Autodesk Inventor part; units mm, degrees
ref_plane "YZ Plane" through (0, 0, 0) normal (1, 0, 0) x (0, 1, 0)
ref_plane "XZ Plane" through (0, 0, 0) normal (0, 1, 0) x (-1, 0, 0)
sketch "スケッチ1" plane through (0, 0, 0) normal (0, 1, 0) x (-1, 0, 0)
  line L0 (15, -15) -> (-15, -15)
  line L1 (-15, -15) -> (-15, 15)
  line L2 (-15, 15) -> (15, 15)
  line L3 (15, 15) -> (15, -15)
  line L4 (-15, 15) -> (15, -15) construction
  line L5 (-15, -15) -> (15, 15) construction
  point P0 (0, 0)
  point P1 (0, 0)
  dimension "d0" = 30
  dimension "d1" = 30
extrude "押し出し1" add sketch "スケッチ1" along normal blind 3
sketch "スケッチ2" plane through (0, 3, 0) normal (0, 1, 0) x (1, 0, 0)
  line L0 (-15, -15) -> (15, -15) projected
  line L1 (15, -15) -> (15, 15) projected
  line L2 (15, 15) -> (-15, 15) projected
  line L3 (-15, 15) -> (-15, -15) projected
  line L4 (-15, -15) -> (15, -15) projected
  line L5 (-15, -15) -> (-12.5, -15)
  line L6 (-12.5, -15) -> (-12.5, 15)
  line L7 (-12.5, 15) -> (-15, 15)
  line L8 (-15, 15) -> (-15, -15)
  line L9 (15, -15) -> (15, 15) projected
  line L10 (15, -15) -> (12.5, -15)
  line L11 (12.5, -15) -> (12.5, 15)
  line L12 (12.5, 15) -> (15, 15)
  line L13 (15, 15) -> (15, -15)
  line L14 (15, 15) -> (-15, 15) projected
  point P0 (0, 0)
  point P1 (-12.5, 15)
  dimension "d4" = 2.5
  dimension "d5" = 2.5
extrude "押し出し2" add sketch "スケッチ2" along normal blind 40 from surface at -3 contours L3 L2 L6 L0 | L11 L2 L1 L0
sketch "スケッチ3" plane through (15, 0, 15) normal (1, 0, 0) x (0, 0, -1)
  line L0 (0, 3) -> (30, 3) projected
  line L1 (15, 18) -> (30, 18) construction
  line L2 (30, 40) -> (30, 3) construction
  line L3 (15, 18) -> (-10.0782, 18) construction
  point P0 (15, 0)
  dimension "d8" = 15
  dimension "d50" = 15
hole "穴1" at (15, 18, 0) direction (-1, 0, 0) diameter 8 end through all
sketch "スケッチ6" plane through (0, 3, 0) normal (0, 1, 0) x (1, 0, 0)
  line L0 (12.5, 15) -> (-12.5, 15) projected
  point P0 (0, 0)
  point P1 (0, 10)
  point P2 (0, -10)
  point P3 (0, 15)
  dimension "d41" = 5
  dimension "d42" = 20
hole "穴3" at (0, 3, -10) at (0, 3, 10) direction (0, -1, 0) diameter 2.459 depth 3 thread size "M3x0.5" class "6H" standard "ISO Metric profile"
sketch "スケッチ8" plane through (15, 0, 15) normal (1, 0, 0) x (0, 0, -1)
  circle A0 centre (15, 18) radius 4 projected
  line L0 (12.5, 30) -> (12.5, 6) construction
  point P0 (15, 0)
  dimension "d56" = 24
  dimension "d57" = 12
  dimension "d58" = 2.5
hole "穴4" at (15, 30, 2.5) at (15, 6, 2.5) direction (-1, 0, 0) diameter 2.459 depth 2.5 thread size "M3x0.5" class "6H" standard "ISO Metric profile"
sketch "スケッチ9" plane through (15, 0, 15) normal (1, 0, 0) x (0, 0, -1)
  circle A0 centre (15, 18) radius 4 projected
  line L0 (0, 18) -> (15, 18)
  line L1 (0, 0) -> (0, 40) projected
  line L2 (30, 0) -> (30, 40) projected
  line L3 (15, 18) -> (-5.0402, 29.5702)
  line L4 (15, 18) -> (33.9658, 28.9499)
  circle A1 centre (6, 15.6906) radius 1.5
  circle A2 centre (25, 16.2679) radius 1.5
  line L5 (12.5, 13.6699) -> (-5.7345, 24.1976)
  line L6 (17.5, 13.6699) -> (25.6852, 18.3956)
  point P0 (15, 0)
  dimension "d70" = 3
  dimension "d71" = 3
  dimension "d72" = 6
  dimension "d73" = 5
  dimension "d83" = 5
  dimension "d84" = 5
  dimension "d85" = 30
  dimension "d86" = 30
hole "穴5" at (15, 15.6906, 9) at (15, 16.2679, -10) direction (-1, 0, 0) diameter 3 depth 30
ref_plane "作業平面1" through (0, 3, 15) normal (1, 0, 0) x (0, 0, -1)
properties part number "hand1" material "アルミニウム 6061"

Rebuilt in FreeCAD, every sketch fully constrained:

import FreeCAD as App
import Part
import Sketcher

doc = App.newDocument("Part")
params = doc.addObject("Spreadsheet::Sheet", "Params")
for row, (alias, value) in enumerate([
    ("sketch1_width", "30 mm"),
    ("pad1_length", "3 mm"),
    ("sketch2_width", "2.5 mm"),
    ("sketch2_height", "30 mm"),
    ("pad2_length", "40 mm"),
    ("sketch3_diameter", "8 mm"),
    ("hole_diameter", "8 mm"),
    ("hole2_diameter", "2.459 mm"),
    ("hole2_depth", "3 mm"),
    ("hole3_diameter", "2.459 mm"),
    ("hole3_depth", "2.5 mm"),
    ("sketch6_diameter", "3 mm"),
    ("hole4_diameter", "3 mm"),
    ("hole4_depth", "30 mm"),
], start=1):
    params.set(f"A{row}", alias)
    params.set(f"B{row}", "=" + value)
    params.setAlias(f"B{row}", alias)

body = doc.addObject("PartDesign::Body", "Body")

# Sketch on XZ plane
sketch1 = body.newObject("Sketcher::SketchObject", "Sketch")
sketch1.AttachmentSupport = (doc.getObject("XZ_Plane"), [""])
sketch1.MapMode = "FlatFace"
sketch1.addGeometry([
    Part.LineSegment(App.Vector(15, -15, 0), App.Vector(-15, -15, 0)),
    Part.LineSegment(App.Vector(-15, -15, 0), App.Vector(-15, 15, 0)),
    Part.LineSegment(App.Vector(-15, 15, 0), App.Vector(15, 15, 0)),
    Part.LineSegment(App.Vector(15, 15, 0), App.Vector(15, -15, 0)),
], False)
sketch1.addConstraint([
    Sketcher.Constraint("Coincident", 0, 2, 1, 1),
    Sketcher.Constraint("Coincident", 1, 2, 2, 1),
    Sketcher.Constraint("Coincident", 2, 2, 3, 1),
    Sketcher.Constraint("Coincident", 3, 2, 0, 1),
    Sketcher.Constraint("Horizontal", 0),
    Sketcher.Constraint("Vertical", 1),
    Sketcher.Constraint("Horizontal", 2),
    Sketcher.Constraint("Vertical", 3),
    Sketcher.Constraint("Symmetric", 0, 2, 2, 2, -1, 1),
    Sketcher.Constraint("Equal", 2, 1),
    Sketcher.Constraint("DistanceX", 0, 2, 0, 1, 30.0),
])
sketch1.setExpression("Constraints[10]", "Params.sketch1_width")
pad1 = body.newObject("PartDesign::Pad", "Pad")
pad1.Profile = sketch1
pad1.setExpression("Length", "Params.pad1_length")
pad1.Reversed = True

# Sketch on XZ plane
sketch2 = body.newObject("Sketcher::SketchObject", "Sketch001")
sketch2.AttachmentSupport = (doc.getObject("XZ_Plane"), [""])
sketch2.MapMode = "FlatFace"
sketch2.addGeometry([
    Part.LineSegment(App.Vector(-15, -15, 0), App.Vector(-15, 15, 0)),  # 0
    Part.LineSegment(App.Vector(-15, 15, 0), App.Vector(-12.5, 15, 0)),  # 1
    Part.LineSegment(App.Vector(-12.5, 15, 0), App.Vector(-12.5, -15, 0)),  # 2
    Part.LineSegment(App.Vector(-12.5, -15, 0), App.Vector(-15, -15, 0)),  # 3
    Part.LineSegment(App.Vector(12.5, -15, 0), App.Vector(12.5, 15, 0)),  # 4
    Part.LineSegment(App.Vector(12.5, 15, 0), App.Vector(15, 15, 0)),  # 5
    Part.LineSegment(App.Vector(15, 15, 0), App.Vector(15, -15, 0)),  # 6
    Part.LineSegment(App.Vector(15, -15, 0), App.Vector(12.5, -15, 0)),  # 7
], False)
sketch2.addConstraint([
    Sketcher.Constraint("Coincident", 0, 2, 1, 1),
    Sketcher.Constraint("Coincident", 1, 2, 2, 1),
    Sketcher.Constraint("Coincident", 2, 2, 3, 1),
    Sketcher.Constraint("Coincident", 3, 2, 0, 1),
    Sketcher.Constraint("Coincident", 4, 2, 5, 1),
    Sketcher.Constraint("Coincident", 5, 2, 6, 1),
    Sketcher.Constraint("Coincident", 6, 2, 7, 1),
    Sketcher.Constraint("Coincident", 7, 2, 4, 1),
    Sketcher.Constraint("Vertical", 0),
    Sketcher.Constraint("Horizontal", 1),
    Sketcher.Constraint("Vertical", 2),
    Sketcher.Constraint("Horizontal", 3),
    Sketcher.Constraint("Vertical", 4),
    Sketcher.Constraint("Horizontal", 5),
    Sketcher.Constraint("Vertical", 6),
    Sketcher.Constraint("Horizontal", 7),
    Sketcher.Constraint("Symmetric", 2, 2, 4, 2, -1, 1),
    Sketcher.Constraint("Symmetric", 0, 2, 6, 2, -1, 1),
    Sketcher.Constraint("Horizontal", 1, 2, 4, 2),
    Sketcher.Constraint("DistanceX", 1, 1, 1, 2, 2.5),
    Sketcher.Constraint("DistanceY", 0, 1, 0, 2, 30.0),
    Sketcher.Constraint("DistanceX", 0, 2, -1, 1, 15.0),
])
sketch2.setExpression("Constraints[19]", "Params.sketch2_width")
sketch2.setExpression("Constraints[20]", "Params.sketch2_height")
pad2 = body.newObject("PartDesign::Pad", "Pad001")
pad2.Profile = sketch2
pad2.setExpression("Length", "Params.pad2_length")
pad2.Reversed = True

# Sketch on YZ plane
sketch3 = body.newObject("Sketcher::SketchObject", "Sketch002")
sketch3.AttachmentSupport = (doc.getObject("YZ_Plane"), [""])
sketch3.MapMode = "FlatFace"
sketch3.AttachmentOffset = App.Placement(App.Vector(0, 0, 15), App.Rotation())
sketch3.addGeometry(Part.Circle(App.Vector(18, 0, 0), App.Vector(0, 0, 1), 4), False)
sketch3.addConstraint([
    Sketcher.Constraint("PointOnObject", 0, 3, -1),
    Sketcher.Constraint("Diameter", 0, 8.0),
    Sketcher.Constraint("DistanceX", -1, 1, 0, 3, 18.0),
])
sketch3.setExpression("Constraints[1]", "Params.sketch3_diameter")
doc.recompute()
hole = body.newObject("PartDesign::Hole", "Hole")
hole.Profile = sketch3
hole.ThreadType = "None"
hole.setExpression("Diameter", "Params.hole_diameter")
hole.DepthType = "ThroughAll"

# Sketch on XZ plane
sketch4 = body.newObject("Sketcher::SketchObject", "Sketch003")
sketch4.AttachmentSupport = (doc.getObject("XZ_Plane"), [""])
sketch4.MapMode = "FlatFace"
sketch4.AttachmentOffset = App.Placement(App.Vector(0, 0, -3), App.Rotation())
sketch4.addGeometry([
    Part.Circle(App.Vector(0, -10, 0), App.Vector(0, 0, 1), 1.2),
    Part.Circle(App.Vector(0, 10, 0), App.Vector(0, 0, 1), 1.2),
], False)
sketch4.addConstraint([
    Sketcher.Constraint("Equal", 0, 1),
    Sketcher.Constraint("Symmetric", 0, 3, 1, 3, -1, 1),
    Sketcher.Constraint("PointOnObject", 0, 3, -2),
    Sketcher.Constraint("Diameter", 0, 2.459),
    Sketcher.Constraint("DistanceY", 0, 3, -1, 1, 10.0),
])
doc.recompute()
hole2 = body.newObject("PartDesign::Hole", "Hole001")
hole2.Profile = sketch4
hole2.ThreadType = "None"
hole2.setExpression("Diameter", "Params.hole2_diameter")
hole2.DepthType = "Dimension"
hole2.setExpression("Depth", "Params.hole2_depth")
hole2.DrillPoint = "Flat"
hole2.Reversed = True

# Sketch on YZ plane
sketch5 = body.newObject("Sketcher::SketchObject", "Sketch004")
sketch5.AttachmentSupport = (doc.getObject("YZ_Plane"), [""])
sketch5.MapMode = "FlatFace"
sketch5.AttachmentOffset = App.Placement(App.Vector(0, 0, 15), App.Rotation())
sketch5.addGeometry([
    Part.Circle(App.Vector(30, 2.5, 0), App.Vector(0, 0, 1), 1.2),
    Part.Circle(App.Vector(6, 2.5, 0), App.Vector(0, 0, 1), 1.2),
], False)
sketch5.addConstraint([
    Sketcher.Constraint("Equal", 0, 1),
    Sketcher.Constraint("Horizontal", 0, 3, 1, 3),
    Sketcher.Constraint("Diameter", 0, 2.459),
    Sketcher.Constraint("DistanceX", -1, 1, 0, 3, 30.0),
    Sketcher.Constraint("DistanceX", -1, 1, 1, 3, 6.0),
    Sketcher.Constraint("DistanceY", -1, 1, 0, 3, 2.5),
])
doc.recompute()
hole3 = body.newObject("PartDesign::Hole", "Hole002")
hole3.Profile = sketch5
hole3.ThreadType = "None"
hole3.setExpression("Diameter", "Params.hole3_diameter")
hole3.DepthType = "Dimension"
hole3.setExpression("Depth", "Params.hole3_depth")
hole3.DrillPoint = "Flat"

# Sketch on YZ plane
sketch6 = body.newObject("Sketcher::SketchObject", "Sketch005")
sketch6.AttachmentSupport = (doc.getObject("YZ_Plane"), [""])
sketch6.MapMode = "FlatFace"
sketch6.AttachmentOffset = App.Placement(App.Vector(0, 0, 15), App.Rotation())
sketch6.addGeometry([
    Part.Circle(App.Vector(15.7, 9, 0), App.Vector(0, 0, 1), 1.5),
    Part.Circle(App.Vector(16.3, -10, 0), App.Vector(0, 0, 1), 1.5),
], False)
sketch6.addConstraint([
    Sketcher.Constraint("Equal", 0, 1),
    Sketcher.Constraint("Diameter", 0, 3.0),
    Sketcher.Constraint("DistanceY", -1, 1, 0, 3, 9.0),
    Sketcher.Constraint("DistanceY", 1, 3, -1, 1, 10.0),
    Sketcher.Constraint("DistanceX", -1, 1, 1, 3, 16.268),
    Sketcher.Constraint("DistanceX", -1, 1, 0, 3, 15.6906),
])
sketch6.setExpression("Constraints[1]", "Params.sketch6_diameter")
doc.recompute()
hole4 = body.newObject("PartDesign::Hole", "Hole003")
hole4.Profile = sketch6
hole4.ThreadType = "None"
hole4.setExpression("Diameter", "Params.hole4_diameter")
hole4.DepthType = "Dimension"
hole4.setExpression("Depth", "Params.hole4_depth")
hole4.DrillPoint = "Flat"

doc.recompute()
